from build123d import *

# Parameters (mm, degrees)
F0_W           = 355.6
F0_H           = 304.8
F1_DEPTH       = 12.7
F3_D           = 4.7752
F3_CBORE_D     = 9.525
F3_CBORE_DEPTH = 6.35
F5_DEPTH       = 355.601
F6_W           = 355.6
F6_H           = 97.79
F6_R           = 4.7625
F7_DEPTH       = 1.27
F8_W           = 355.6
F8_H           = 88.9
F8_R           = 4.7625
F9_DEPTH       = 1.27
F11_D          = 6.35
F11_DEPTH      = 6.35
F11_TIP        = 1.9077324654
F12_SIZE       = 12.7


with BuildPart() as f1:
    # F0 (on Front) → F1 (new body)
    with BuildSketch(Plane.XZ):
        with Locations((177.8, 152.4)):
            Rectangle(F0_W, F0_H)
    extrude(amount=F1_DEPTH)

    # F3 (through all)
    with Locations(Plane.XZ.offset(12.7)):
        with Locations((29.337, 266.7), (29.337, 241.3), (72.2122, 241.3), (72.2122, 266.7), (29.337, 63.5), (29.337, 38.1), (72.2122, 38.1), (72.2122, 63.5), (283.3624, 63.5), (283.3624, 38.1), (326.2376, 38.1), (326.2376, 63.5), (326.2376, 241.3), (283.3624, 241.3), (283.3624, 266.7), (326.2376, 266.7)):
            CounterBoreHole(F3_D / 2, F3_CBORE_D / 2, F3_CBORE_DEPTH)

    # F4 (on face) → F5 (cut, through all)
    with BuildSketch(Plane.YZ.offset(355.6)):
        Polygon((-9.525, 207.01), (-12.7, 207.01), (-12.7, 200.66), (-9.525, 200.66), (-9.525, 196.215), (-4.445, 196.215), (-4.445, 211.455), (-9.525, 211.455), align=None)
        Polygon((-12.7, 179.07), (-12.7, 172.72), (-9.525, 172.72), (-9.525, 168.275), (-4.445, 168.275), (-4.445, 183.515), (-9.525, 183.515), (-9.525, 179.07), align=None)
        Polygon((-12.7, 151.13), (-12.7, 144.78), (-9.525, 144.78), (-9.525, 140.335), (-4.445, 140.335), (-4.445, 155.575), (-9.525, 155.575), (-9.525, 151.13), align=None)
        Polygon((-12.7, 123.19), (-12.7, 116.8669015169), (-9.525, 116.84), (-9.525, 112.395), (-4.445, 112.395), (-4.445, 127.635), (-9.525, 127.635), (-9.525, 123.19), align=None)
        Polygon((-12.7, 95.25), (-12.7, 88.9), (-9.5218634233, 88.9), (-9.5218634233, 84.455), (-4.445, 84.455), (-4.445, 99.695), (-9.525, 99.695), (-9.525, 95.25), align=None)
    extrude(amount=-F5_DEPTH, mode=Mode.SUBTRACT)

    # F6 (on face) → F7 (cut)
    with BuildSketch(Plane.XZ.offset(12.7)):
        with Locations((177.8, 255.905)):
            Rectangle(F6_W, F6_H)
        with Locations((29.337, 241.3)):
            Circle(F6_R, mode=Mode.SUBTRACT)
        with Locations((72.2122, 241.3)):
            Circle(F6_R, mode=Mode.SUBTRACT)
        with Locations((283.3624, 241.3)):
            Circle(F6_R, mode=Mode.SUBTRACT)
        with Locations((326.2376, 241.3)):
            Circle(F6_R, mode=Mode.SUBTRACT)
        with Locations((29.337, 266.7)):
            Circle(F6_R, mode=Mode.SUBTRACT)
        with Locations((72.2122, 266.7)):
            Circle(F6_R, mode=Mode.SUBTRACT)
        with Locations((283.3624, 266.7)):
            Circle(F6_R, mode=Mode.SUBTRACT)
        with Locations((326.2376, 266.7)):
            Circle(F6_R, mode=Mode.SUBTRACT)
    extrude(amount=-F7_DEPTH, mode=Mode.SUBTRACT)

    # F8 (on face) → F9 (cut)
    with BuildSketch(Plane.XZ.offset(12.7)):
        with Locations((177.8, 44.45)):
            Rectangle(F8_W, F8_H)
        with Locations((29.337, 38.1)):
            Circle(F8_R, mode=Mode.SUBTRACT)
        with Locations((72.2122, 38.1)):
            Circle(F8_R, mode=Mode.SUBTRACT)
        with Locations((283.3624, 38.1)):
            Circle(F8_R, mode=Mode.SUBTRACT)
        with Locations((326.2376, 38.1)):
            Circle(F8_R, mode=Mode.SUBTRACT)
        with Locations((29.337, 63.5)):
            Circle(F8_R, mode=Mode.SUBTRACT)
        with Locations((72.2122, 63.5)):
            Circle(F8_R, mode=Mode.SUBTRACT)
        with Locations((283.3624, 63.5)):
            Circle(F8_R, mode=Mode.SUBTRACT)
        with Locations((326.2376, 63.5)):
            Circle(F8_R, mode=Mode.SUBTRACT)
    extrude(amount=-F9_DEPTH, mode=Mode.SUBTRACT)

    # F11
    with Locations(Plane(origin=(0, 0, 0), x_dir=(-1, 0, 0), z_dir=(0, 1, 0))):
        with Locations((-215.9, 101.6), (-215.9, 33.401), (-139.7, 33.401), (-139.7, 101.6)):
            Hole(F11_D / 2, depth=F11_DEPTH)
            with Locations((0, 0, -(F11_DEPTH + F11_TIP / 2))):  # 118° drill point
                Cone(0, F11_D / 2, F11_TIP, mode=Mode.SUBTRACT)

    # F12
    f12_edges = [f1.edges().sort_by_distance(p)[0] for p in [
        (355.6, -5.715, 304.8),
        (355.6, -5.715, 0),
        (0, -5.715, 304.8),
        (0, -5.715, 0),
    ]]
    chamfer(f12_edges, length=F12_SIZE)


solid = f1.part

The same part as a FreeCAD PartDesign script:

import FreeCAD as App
import Part
import Sketcher
Q = App.Units.Quantity


def edges_at(feature, points):
    """Names of the edges that pass closest to the given points."""
    edges = feature.Shape.Edges
    near = lambda p: min(range(len(edges)), key=lambda i: edges[i].distToShape(Part.Vertex(*p))[0])
    return sorted({f"Edge{near(p) + 1}" for p in points})

doc = App.newDocument("Part")
params = doc.addObject("Spreadsheet::Sheet", "Params")
for row, (alias, value) in enumerate([
    ("sketch1_width", "14 in"),
    ("sketch1_height", "12 in"),
    ("pad1_length", "0.5 in"),
    ("sketch2_diameter", "0.188 in"),
    ("hole_diameter", "0.188 in"),
    ("hole_cbore_diameter", "0.375 in"),
    ("hole_cbore_depth", "0.25 in"),
    ("sketch3_width", "0.2 in"),
    ("sketch3_height", "0.6 in"),
    ("sketch3_height2", "0.25 in"),
    ("sketch3_width2", "0.125 in"),
    ("sketch4_width", "14 in"),
    ("sketch4_diameter", "0.375 in"),
    ("sketch4_height", "3.85 in"),
    ("pocket2_length", "0.05 in"),
    ("sketch5_width", "14 in"),
    ("sketch5_diameter", "0.375 in"),
    ("sketch5_height", "3.5 in"),
    ("pocket3_length", "0.05 in"),
    ("sketch6_diameter", "0.25 in"),
    ("hole2_diameter", "0.25 in"),
    ("hole2_depth", "0.25 in"),
    ("chamfer_size", "0.5 in"),
], start=1):
    params.set(f"A{row}", alias)
    params.set(f"B{row}", "=" + value)
    params.setAlias(f"B{row}", alias)

body = doc.addObject("PartDesign::Body", "Body")

sketch1 = body.newObject("Sketcher::SketchObject", "Sketch")
sketch1.AttachmentSupport = (doc.getObject("XZ_Plane"), [""])
sketch1.MapMode = "FlatFace"
sketch1.addGeometry(Part.LineSegment(App.Vector(0, 305, 0), App.Vector(0, 0, 0)), False)
sketch1.addGeometry(Part.LineSegment(App.Vector(0, 0, 0), App.Vector(356, 0, 0)), False)
sketch1.addGeometry(Part.LineSegment(App.Vector(356, 0, 0), App.Vector(356, 305, 0)), False)
sketch1.addGeometry(Part.LineSegment(App.Vector(356, 305, 0), App.Vector(0, 305, 0)), False)
sketch1.addConstraint(Sketcher.Constraint("Coincident", 0, 2, 1, 1))
sketch1.addConstraint(Sketcher.Constraint("Coincident", 1, 2, 2, 1))
sketch1.addConstraint(Sketcher.Constraint("Coincident", 2, 2, 3, 1))
sketch1.addConstraint(Sketcher.Constraint("Coincident", 3, 2, 0, 1))
sketch1.addConstraint(Sketcher.Constraint("Vertical", 0))
sketch1.addConstraint(Sketcher.Constraint("Horizontal", 1))
sketch1.addConstraint(Sketcher.Constraint("Vertical", 2))
sketch1.addConstraint(Sketcher.Constraint("Horizontal", 3))
sketch1.addConstraint(Sketcher.Constraint("Coincident", 0, 2, -1, 1))
sketch1.addConstraint(Sketcher.Constraint("DistanceX", 1, 1, 1, 2, Q("14 in")))
sketch1.addConstraint(Sketcher.Constraint("DistanceY", 0, 2, 0, 1, Q("12 in")))
sketch1.setExpression("Constraints[9]", "Params.sketch1_width")
sketch1.setExpression("Constraints[10]", "Params.sketch1_height")
pad1 = body.newObject("PartDesign::Pad", "Pad")
pad1.Profile = sketch1
pad1.setExpression("Length", "Params.pad1_length")

sketch2 = body.newObject("Sketcher::SketchObject", "Sketch001")
sketch2.AttachmentSupport = (doc.getObject("XZ_Plane"), [""])
sketch2.MapMode = "FlatFace"
sketch2.AttachmentOffset = App.Placement(App.Vector(0, 0, 0.5 * 25.4), App.Rotation())
sketch2.addGeometry(Part.Circle(App.Vector(29.3, 266.7, 0), App.Vector(0, 0, 1), 2.4), False)
sketch2.addGeometry(Part.Circle(App.Vector(29.3, 241.3, 0), App.Vector(0, 0, 1), 2.4), False)
sketch2.addGeometry(Part.Circle(App.Vector(72.2, 241.3, 0), App.Vector(0, 0, 1), 2.4), False)
sketch2.addGeometry(Part.Circle(App.Vector(72.2, 266.7, 0), App.Vector(0, 0, 1), 2.4), False)
sketch2.addGeometry(Part.Circle(App.Vector(29.3, 63.5, 0), App.Vector(0, 0, 1), 2.4), False)
sketch2.addGeometry(Part.Circle(App.Vector(29.3, 38.1, 0), App.Vector(0, 0, 1), 2.4), False)
sketch2.addGeometry(Part.Circle(App.Vector(72.2, 38.1, 0), App.Vector(0, 0, 1), 2.4), False)
sketch2.addGeometry(Part.Circle(App.Vector(72.2, 63.5, 0), App.Vector(0, 0, 1), 2.4), False)
sketch2.addGeometry(Part.Circle(App.Vector(283.4, 63.5, 0), App.Vector(0, 0, 1), 2.4), False)
sketch2.addGeometry(Part.Circle(App.Vector(283.4, 38.1, 0), App.Vector(0, 0, 1), 2.4), False)
sketch2.addGeometry(Part.Circle(App.Vector(326.2, 38.1, 0), App.Vector(0, 0, 1), 2.4), False)
sketch2.addGeometry(Part.Circle(App.Vector(326.2, 63.5, 0), App.Vector(0, 0, 1), 2.4), False)
sketch2.addGeometry(Part.Circle(App.Vector(326.2, 241.3, 0), App.Vector(0, 0, 1), 2.4), False)
sketch2.addGeometry(Part.Circle(App.Vector(283.4, 241.3, 0), App.Vector(0, 0, 1), 2.4), False)
sketch2.addGeometry(Part.Circle(App.Vector(283.4, 266.7, 0), App.Vector(0, 0, 1), 2.4), False)
sketch2.addGeometry(Part.Circle(App.Vector(326.2, 266.7, 0), App.Vector(0, 0, 1), 2.4), False)
sketch2.addConstraint(Sketcher.Constraint("Equal", 0, 1))
sketch2.addConstraint(Sketcher.Constraint("Equal", 1, 2))
sketch2.addConstraint(Sketcher.Constraint("Equal", 2, 3))
sketch2.addConstraint(Sketcher.Constraint("Equal", 3, 4))
sketch2.addConstraint(Sketcher.Constraint("Equal", 4, 5))
sketch2.addConstraint(Sketcher.Constraint("Equal", 5, 6))
sketch2.addConstraint(Sketcher.Constraint("Equal", 6, 7))
sketch2.addConstraint(Sketcher.Constraint("Equal", 7, 8))
sketch2.addConstraint(Sketcher.Constraint("Equal", 8, 9))
sketch2.addConstraint(Sketcher.Constraint("Equal", 9, 10))
sketch2.addConstraint(Sketcher.Constraint("Equal", 10, 11))
sketch2.addConstraint(Sketcher.Constraint("Equal", 11, 12))
sketch2.addConstraint(Sketcher.Constraint("Equal", 12, 13))
sketch2.addConstraint(Sketcher.Constraint("Equal", 13, 14))
sketch2.addConstraint(Sketcher.Constraint("Equal", 14, 15))
sketch2.addConstraint(Sketcher.Constraint("Horizontal", 1, 3, 2, 3))
sketch2.addConstraint(Sketcher.Constraint("Horizontal", 0, 3, 3, 3))
sketch2.addConstraint(Sketcher.Constraint("Horizontal", 5, 3, 6, 3))
sketch2.addConstraint(Sketcher.Constraint("Horizontal", 4, 3, 7, 3))
sketch2.addConstraint(Sketcher.Constraint("Horizontal", 7, 3, 8, 3))
sketch2.addConstraint(Sketcher.Constraint("Horizontal", 6, 3, 9, 3))
sketch2.addConstraint(Sketcher.Constraint("Horizontal", 9, 3, 10, 3))
sketch2.addConstraint(Sketcher.Constraint("Horizontal", 8, 3, 11, 3))
sketch2.addConstraint(Sketcher.Constraint("Horizontal", 2, 3, 12, 3))
sketch2.addConstraint(Sketcher.Constraint("Horizontal", 12, 3, 13, 3))
sketch2.addConstraint(Sketcher.Constraint("Horizontal", 3, 3, 14, 3))
sketch2.addConstraint(Sketcher.Constraint("Horizontal", 14, 3, 15, 3))
sketch2.addConstraint(Sketcher.Constraint("Vertical", 0, 3, 1, 3))
sketch2.addConstraint(Sketcher.Constraint("Vertical", 2, 3, 3, 3))
sketch2.addConstraint(Sketcher.Constraint("Vertical", 1, 3, 4, 3))
sketch2.addConstraint(Sketcher.Constraint("Vertical", 4, 3, 5, 3))
sketch2.addConstraint(Sketcher.Constraint("Vertical", 3, 3, 6, 3))
sketch2.addConstraint(Sketcher.Constraint("Vertical", 6, 3, 7, 3))
sketch2.addConstraint(Sketcher.Constraint("Vertical", 8, 3, 9, 3))
sketch2.addConstraint(Sketcher.Constraint("Vertical", 10, 3, 11, 3))
sketch2.addConstraint(Sketcher.Constraint("Vertical", 11, 3, 12, 3))
sketch2.addConstraint(Sketcher.Constraint("Vertical", 9, 3, 13, 3))
sketch2.addConstraint(Sketcher.Constraint("Vertical", 13, 3, 14, 3))
sketch2.addConstraint(Sketcher.Constraint("Vertical", 12, 3, 15, 3))
sketch2.addConstraint(Sketcher.Constraint("Diameter", 0, Q("0.188 in")))
sketch2.addConstraint(Sketcher.Constraint("DistanceY", 1, 3, 0, 3, Q("1 in")))
sketch2.addConstraint(Sketcher.Constraint("DistanceY", 4, 3, 1, 3, Q("7 in")))
sketch2.addConstraint(Sketcher.Constraint("DistanceY", 5, 3, 4, 3, Q("1 in")))
sketch2.addConstraint(Sketcher.Constraint("DistanceY", -1, 1, 0, 3, Q("10.5 in")))
sketch2.addConstraint(Sketcher.Constraint("DistanceX", -1, 1, 0, 3, Q("1.155 in")))
sketch2.addConstraint(Sketcher.Constraint("DistanceX", -1, 1, 2, 3, Q("2.843 in")))
sketch2.addConstraint(Sketcher.Constraint("DistanceX", -1, 1, 8, 3, Q("11.156 in")))
sketch2.addConstraint(Sketcher.Constraint("DistanceX", -1, 1, 10, 3, Q("12.844 in")))
sketch2.setExpression("Constraints[39]", "Params.sketch2_diameter")
doc.recompute()
hole = body.newObject("PartDesign::Hole", "Hole")
hole.Profile = sketch2
hole.ThreadType = "None"
hole.setExpression("Diameter", "Params.hole_diameter")
hole.DepthType = "ThroughAll"
hole.HoleCutType = "Counterbore"
hole.setExpression("HoleCutDiameter", "Params.hole_cbore_diameter")
hole.setExpression("HoleCutDepth", "Params.hole_cbore_depth")

sketch3 = body.newObject("Sketcher::SketchObject", "Sketch002")
sketch3.AttachmentSupport = (doc.getObject("YZ_Plane"), [""])
sketch3.MapMode = "FlatFace"
sketch3.AttachmentOffset = App.Placement(App.Vector(0, 0, 14 * 25.4), App.Rotation())
sketch3.addGeometry(Part.LineSegment(App.Vector(-9.5, 207, 0), App.Vector(-12.7, 207, 0)), False)
sketch3.addGeometry(Part.LineSegment(App.Vector(-12.7, 207, 0), App.Vector(-12.7, 200.7, 0)), False)
sketch3.addGeometry(Part.LineSegment(App.Vector(-12.7, 200.7, 0), App.Vector(-9.5, 200.7, 0)), False)
sketch3.addGeometry(Part.LineSegment(App.Vector(-9.5, 200.7, 0), App.Vector(-9.5, 196.2, 0)), False)
sketch3.addGeometry(Part.LineSegment(App.Vector(-9.5, 196.2, 0), App.Vector(-4.4, 196.2, 0)), False)
sketch3.addGeometry(Part.LineSegment(App.Vector(-4.4, 196.2, 0), App.Vector(-4.4, 211.5, 0)), False)
sketch3.addGeometry(Part.LineSegment(App.Vector(-4.4, 211.5, 0), App.Vector(-9.5, 211.5, 0)), False)
sketch3.addGeometry(Part.LineSegment(App.Vector(-9.5, 211.5, 0), App.Vector(-9.5, 207, 0)), False)
sketch3.addGeometry(Part.LineSegment(App.Vector(-12.7, 179.1, 0), App.Vector(-12.7, 172.7, 0)), False)
sketch3.addGeometry(Part.LineSegment(App.Vector(-12.7, 172.7, 0), App.Vector(-9.5, 172.7, 0)), False)
sketch3.addGeometry(Part.LineSegment(App.Vector(-9.5, 172.7, 0), App.Vector(-9.5, 168.3, 0)), False)
sketch3.addGeometry(Part.LineSegment(App.Vector(-9.5, 168.3, 0), App.Vector(-4.4, 168.3, 0)), False)
sketch3.addGeometry(Part.LineSegment(App.Vector(-4.4, 168.3, 0), App.Vector(-4.4, 183.5, 0)), False)
sketch3.addGeometry(Part.LineSegment(App.Vector(-4.4, 183.5, 0), App.Vector(-9.5, 183.5, 0)), False)
sketch3.addGeometry(Part.LineSegment(App.Vector(-9.5, 183.5, 0), App.Vector(-9.5, 179.1, 0)), False)
sketch3.addGeometry(Part.LineSegment(App.Vector(-9.5, 179.1, 0), App.Vector(-12.7, 179.1, 0)), False)
sketch3.addGeometry(Part.LineSegment(App.Vector(-12.7, 151.1, 0), App.Vector(-12.7, 144.8, 0)), False)
sketch3.addGeometry(Part.LineSegment(App.Vector(-12.7, 144.8, 0), App.Vector(-9.5, 144.8, 0)), False)
sketch3.addGeometry(Part.LineSegment(App.Vector(-9.5, 144.8, 0), App.Vector(-9.5, 140.3, 0)), False)
sketch3.addGeometry(Part.LineSegment(App.Vector(-9.5, 140.3, 0), App.Vector(-4.4, 140.3, 0)), False)
sketch3.addGeometry(Part.LineSegment(App.Vector(-4.4, 140.3, 0), App.Vector(-4.4, 155.6, 0)), False)
sketch3.addGeometry(Part.LineSegment(App.Vector(-4.4, 155.6, 0), App.Vector(-9.5, 155.6, 0)), False)
sketch3.addGeometry(Part.LineSegment(App.Vector(-9.5, 155.6, 0), App.Vector(-9.5, 151.1, 0)), False)
sketch3.addGeometry(Part.LineSegment(App.Vector(-9.5, 151.1, 0), App.Vector(-12.7, 151.1, 0)), False)
sketch3.addGeometry(Part.LineSegment(App.Vector(-12.7, 123.2, 0), App.Vector(-12.7, 116.9, 0)), False)
sketch3.addGeometry(Part.LineSegment(App.Vector(-12.7, 116.9, 0), App.Vector(-9.5, 116.8, 0)), False)
sketch3.addGeometry(Part.LineSegment(App.Vector(-9.5, 116.8, 0), App.Vector(-9.5, 112.4, 0)), False)
sketch3.addGeometry(Part.LineSegment(App.Vector(-9.5, 112.4, 0), App.Vector(-4.4, 112.4, 0)), False)
sketch3.addGeometry(Part.LineSegment(App.Vector(-4.4, 112.4, 0), App.Vector(-4.4, 127.6, 0)), False)
sketch3.addGeometry(Part.LineSegment(App.Vector(-4.4, 127.6, 0), App.Vector(-9.5, 127.6, 0)), False)
sketch3.addGeometry(Part.LineSegment(App.Vector(-9.5, 127.6, 0), App.Vector(-9.5, 123.2, 0)), False)
sketch3.addGeometry(Part.LineSegment(App.Vector(-9.5, 123.2, 0), App.Vector(-12.7, 123.2, 0)), False)
sketch3.addGeometry(Part.LineSegment(App.Vector(-12.7, 95.2, 0), App.Vector(-12.7, 88.9, 0)), False)
sketch3.addGeometry(Part.LineSegment(App.Vector(-12.7, 88.9, 0), App.Vector(-9.5, 88.9, 0)), False)
sketch3.addGeometry(Part.LineSegment(App.Vector(-9.5, 88.9, 0), App.Vector(-9.5, 84.5, 0)), False)
sketch3.addGeometry(Part.LineSegment(App.Vector(-9.5, 84.5, 0), App.Vector(-4.4, 84.5, 0)), False)
sketch3.addGeometry(Part.LineSegment(App.Vector(-4.4, 84.5, 0), App.Vector(-4.4, 99.7, 0)), False)
sketch3.addGeometry(Part.LineSegment(App.Vector(-4.4, 99.7, 0), App.Vector(-9.5, 99.7, 0)), False)
sketch3.addGeometry(Part.LineSegment(App.Vector(-9.5, 99.7, 0), App.Vector(-9.5, 95.2, 0)), False)
sketch3.addGeometry(Part.LineSegment(App.Vector(-9.5, 95.2, 0), App.Vector(-12.7, 95.2, 0)), False)
sketch3.addConstraint(Sketcher.Constraint("Coincident", 0, 2, 1, 1))
sketch3.addConstraint(Sketcher.Constraint("Coincident", 1, 2, 2, 1))
sketch3.addConstraint(Sketcher.Constraint("Coincident", 2, 2, 3, 1))
sketch3.addConstraint(Sketcher.Constraint("Coincident", 3, 2, 4, 1))
sketch3.addConstraint(Sketcher.Constraint("Coincident", 4, 2, 5, 1))
sketch3.addConstraint(Sketcher.Constraint("Coincident", 5, 2, 6, 1))
sketch3.addConstraint(Sketcher.Constraint("Coincident", 6, 2, 7, 1))
sketch3.addConstraint(Sketcher.Constraint("Coincident", 7, 2, 0, 1))
sketch3.addConstraint(Sketcher.Constraint("Coincident", 8, 2, 9, 1))
sketch3.addConstraint(Sketcher.Constraint("Coincident", 9, 2, 10, 1))
sketch3.addConstraint(Sketcher.Constraint("Coincident", 10, 2, 11, 1))
sketch3.addConstraint(Sketcher.Constraint("Coincident", 11, 2, 12, 1))
sketch3.addConstraint(Sketcher.Constraint("Coincident", 12, 2, 13, 1))
sketch3.addConstraint(Sketcher.Constraint("Coincident", 13, 2, 14, 1))
sketch3.addConstraint(Sketcher.Constraint("Coincident", 14, 2, 15, 1))
sketch3.addConstraint(Sketcher.Constraint("Coincident", 15, 2, 8, 1))
sketch3.addConstraint(Sketcher.Constraint("Coincident", 16, 2, 17, 1))
sketch3.addConstraint(Sketcher.Constraint("Coincident", 17, 2, 18, 1))
sketch3.addConstraint(Sketcher.Constraint("Coincident", 18, 2, 19, 1))
sketch3.addConstraint(Sketcher.Constraint("Coincident", 19, 2, 20, 1))
sketch3.addConstraint(Sketcher.Constraint("Coincident", 20, 2, 21, 1))
sketch3.addConstraint(Sketcher.Constraint("Coincident", 21, 2, 22, 1))
sketch3.addConstraint(Sketcher.Constraint("Coincident", 22, 2, 23, 1))
sketch3.addConstraint(Sketcher.Constraint("Coincident", 23, 2, 16, 1))
sketch3.addConstraint(Sketcher.Constraint("Coincident", 24, 2, 25, 1))
sketch3.addConstraint(Sketcher.Constraint("Coincident", 25, 2, 26, 1))
sketch3.addConstraint(Sketcher.Constraint("Coincident", 26, 2, 27, 1))
sketch3.addConstraint(Sketcher.Constraint("Coincident", 27, 2, 28, 1))
sketch3.addConstraint(Sketcher.Constraint("Coincident", 28, 2, 29, 1))
sketch3.addConstraint(Sketcher.Constraint("Coincident", 29, 2, 30, 1))
sketch3.addConstraint(Sketcher.Constraint("Coincident", 30, 2, 31, 1))
sketch3.addConstraint(Sketcher.Constraint("Coincident", 31, 2, 24, 1))
sketch3.addConstraint(Sketcher.Constraint("Coincident", 32, 2, 33, 1))
sketch3.addConstraint(Sketcher.Constraint("Coincident", 33, 2, 34, 1))
sketch3.addConstraint(Sketcher.Constraint("Coincident", 34, 2, 35, 1))
sketch3.addConstraint(Sketcher.Constraint("Coincident", 35, 2, 36, 1))
sketch3.addConstraint(Sketcher.Constraint("Coincident", 36, 2, 37, 1))
sketch3.addConstraint(Sketcher.Constraint("Coincident", 37, 2, 38, 1))
sketch3.addConstraint(Sketcher.Constraint("Coincident", 38, 2, 39, 1))
sketch3.addConstraint(Sketcher.Constraint("Coincident", 39, 2, 32, 1))
sketch3.addConstraint(Sketcher.Constraint("Horizontal", 0))
sketch3.addConstraint(Sketcher.Constraint("Vertical", 1))
sketch3.addConstraint(Sketcher.Constraint("Horizontal", 2))
sketch3.addConstraint(Sketcher.Constraint("Vertical", 3))
sketch3.addConstraint(Sketcher.Constraint("Horizontal", 4))
sketch3.addConstraint(Sketcher.Constraint("Vertical", 5))
sketch3.addConstraint(Sketcher.Constraint("Horizontal", 6))
sketch3.addConstraint(Sketcher.Constraint("Vertical", 7))
sketch3.addConstraint(Sketcher.Constraint("Vertical", 8))
sketch3.addConstraint(Sketcher.Constraint("Horizontal", 9))
sketch3.addConstraint(Sketcher.Constraint("Vertical", 10))
sketch3.addConstraint(Sketcher.Constraint("Horizontal", 11))
sketch3.addConstraint(Sketcher.Constraint("Vertical", 12))
sketch3.addConstraint(Sketcher.Constraint("Horizontal", 13))
sketch3.addConstraint(Sketcher.Constraint("Vertical", 14))
sketch3.addConstraint(Sketcher.Constraint("Horizontal", 15))
sketch3.addConstraint(Sketcher.Constraint("Vertical", 16))
sketch3.addConstraint(Sketcher.Constraint("Horizontal", 17))
sketch3.addConstraint(Sketcher.Constraint("Vertical", 18))
sketch3.addConstraint(Sketcher.Constraint("Horizontal", 19))
sketch3.addConstraint(Sketcher.Constraint("Vertical", 20))
sketch3.addConstraint(Sketcher.Constraint("Horizontal", 21))
sketch3.addConstraint(Sketcher.Constraint("Vertical", 22))
sketch3.addConstraint(Sketcher.Constraint("Horizontal", 23))
sketch3.addConstraint(Sketcher.Constraint("Vertical", 24))
sketch3.addConstraint(Sketcher.Constraint("Vertical", 26))
sketch3.addConstraint(Sketcher.Constraint("Horizontal", 27))
sketch3.addConstraint(Sketcher.Constraint("Vertical", 28))
sketch3.addConstraint(Sketcher.Constraint("Horizontal", 29))
sketch3.addConstraint(Sketcher.Constraint("Vertical", 30))
sketch3.addConstraint(Sketcher.Constraint("Horizontal", 31))
sketch3.addConstraint(Sketcher.Constraint("Vertical", 32))
sketch3.addConstraint(Sketcher.Constraint("Horizontal", 33))
sketch3.addConstraint(Sketcher.Constraint("Vertical", 34))
sketch3.addConstraint(Sketcher.Constraint("Horizontal", 35))
sketch3.addConstraint(Sketcher.Constraint("Vertical", 36))
sketch3.addConstraint(Sketcher.Constraint("Horizontal", 37))
sketch3.addConstraint(Sketcher.Constraint("Vertical", 38))
sketch3.addConstraint(Sketcher.Constraint("Horizontal", 39))
sketch3.addConstraint(Sketcher.Constraint("Vertical", 3, 2, 6, 2))
sketch3.addConstraint(Sketcher.Constraint("Vertical", 1, 2, 8, 2))
sketch3.addConstraint(Sketcher.Constraint("Vertical", 7, 2, 9, 2))
sketch3.addConstraint(Sketcher.Constraint("Vertical", 5, 2, 11, 2))
sketch3.addConstraint(Sketcher.Constraint("Vertical", 10, 2, 13, 2))
sketch3.addConstraint(Sketcher.Constraint("Vertical", 15, 2, 16, 2))
sketch3.addConstraint(Sketcher.Constraint("Vertical", 14, 2, 17, 2))
sketch3.addConstraint(Sketcher.Constraint("Vertical", 12, 2, 19, 2))
sketch3.addConstraint(Sketcher.Constraint("Vertical", 18, 2, 21, 2))
sketch3.addConstraint(Sketcher.Constraint("Vertical", 23, 2, 24, 2))
sketch3.addConstraint(Sketcher.Constraint("Vertical", 22, 2, 25, 2))
sketch3.addConstraint(Sketcher.Constraint("Vertical", 20, 2, 27, 2))
sketch3.addConstraint(Sketcher.Constraint("Vertical", 26, 2, 29, 2))
sketch3.addConstraint(Sketcher.Constraint("Vertical", 31, 2, 32, 2))
sketch3.addConstraint(Sketcher.Constraint("Vertical", 28, 2, 35, 2))
sketch3.addConstraint(Sketcher.Constraint("Vertical", 30, 2, 37, 2))
sketch3.addConstraint(Sketcher.Constraint("Equal", 3, 7))
sketch3.addConstraint(Sketcher.Constraint("Equal", 1, 8))
sketch3.addConstraint(Sketcher.Constraint("Equal", 7, 10))
sketch3.addConstraint(Sketcher.Constraint("Equal", 5, 12))
sketch3.addConstraint(Sketcher.Constraint("Equal", 8, 16))
sketch3.addConstraint(Sketcher.Constraint("Equal", 14, 18))
sketch3.addConstraint(Sketcher.Constraint("Equal", 12, 20))
sketch3.addConstraint(Sketcher.Constraint("Equal", 22, 26))
sketch3.addConstraint(Sketcher.Constraint("Equal", 20, 28))
sketch3.addConstraint(Sketcher.Constraint("Equal", 26, 30))
sketch3.addConstraint(Sketcher.Constraint("Equal", 16, 32))
sketch3.addConstraint(Sketcher.Constraint("Equal", 30, 34))
sketch3.addConstraint(Sketcher.Constraint("Equal", 28, 36))
sketch3.addConstraint(Sketcher.Constraint("DistanceX", 4, 1, 4, 2, Q("0.2 in")))
sketch3.addConstraint(Sketcher.Constraint("DistanceY", 5, 1, 5, 2, Q("0.6 in")))
sketch3.addConstraint(Sketcher.Constraint("DistanceY", 1, 2, 1, 1, Q("0.25 in")))
sketch3.addConstraint(Sketcher.Constraint("DistanceX", 0, 2, -1, 1, Q("0.5 in")))
sketch3.addConstraint(Sketcher.Constraint("DistanceY", -1, 1, 1, 2, Q("7.9 in")))
sketch3.addConstraint(Sketcher.Constraint("DistanceY", -1, 1, 8, 2, Q("6.8 in")))
sketch3.addConstraint(Sketcher.Constraint("DistanceY", -1, 1, 16, 2, Q("5.7 in")))
sketch3.addConstraint(Sketcher.Constraint("DistanceY", -1, 1, 25, 2, Q("4.6 in")))
sketch3.addConstraint(Sketcher.Constraint("DistanceY", -1, 1, 32, 2, Q("3.5 in")))
sketch3.addConstraint(Sketcher.Constraint("DistanceX", 0, 2, 0, 1, Q("0.125 in")))
sketch3.addConstraint(Sketcher.Constraint("DistanceY", 24, 2, 24, 1, 6.323098))
sketch3.addConstraint(Sketcher.Constraint("DistanceX", 33, 1, 33, 2, 3.178137))
sketch3.setExpression("Constraints[108]", "Params.sketch3_width")
sketch3.setExpression("Constraints[109]", "Params.sketch3_height")
sketch3.setExpression("Constraints[110]", "Params.sketch3_height2")
sketch3.setExpression("Constraints[117]", "Params.sketch3_width2")
pocket1 = body.newObject("PartDesign::Pocket", "Pocket")
pocket1.Profile = sketch3
pocket1.Type = "ThroughAll"

sketch4 = body.newObject("Sketcher::SketchObject", "Sketch003")
sketch4.AttachmentSupport = (doc.getObject("XZ_Plane"), [""])
sketch4.MapMode = "FlatFace"
sketch4.AttachmentOffset = App.Placement(App.Vector(0, 0, 0.5 * 25.4), App.Rotation())
sketch4.addGeometry(Part.LineSegment(App.Vector(0, 304.8, 0), App.Vector(0, 207, 0)), False)
sketch4.addGeometry(Part.LineSegment(App.Vector(0, 207, 0), App.Vector(355.6, 207, 0)), False)
sketch4.addGeometry(Part.LineSegment(App.Vector(355.6, 207, 0), App.Vector(355.6, 304.8, 0)), False)
sketch4.addGeometry(Part.LineSegment(App.Vector(355.6, 304.8, 0), App.Vector(0, 304.8, 0)), False)
sketch4.addGeometry(Part.Circle(App.Vector(29.3, 241.3, 0), App.Vector(0, 0, 1), 4.8), False)
sketch4.addGeometry(Part.Circle(App.Vector(72.2, 241.3, 0), App.Vector(0, 0, 1), 4.8), False)
sketch4.addGeometry(Part.Circle(App.Vector(283.4, 241.3, 0), App.Vector(0, 0, 1), 4.8), False)
sketch4.addGeometry(Part.Circle(App.Vector(326.2, 241.3, 0), App.Vector(0, 0, 1), 4.8), False)
sketch4.addGeometry(Part.Circle(App.Vector(29.3, 266.7, 0), App.Vector(0, 0, 1), 4.8), False)
sketch4.addGeometry(Part.Circle(App.Vector(72.2, 266.7, 0), App.Vector(0, 0, 1), 4.8), False)
sketch4.addGeometry(Part.Circle(App.Vector(283.4, 266.7, 0), App.Vector(0, 0, 1), 4.8), False)
sketch4.addGeometry(Part.Circle(App.Vector(326.2, 266.7, 0), App.Vector(0, 0, 1), 4.8), False)
sketch4.addConstraint(Sketcher.Constraint("Coincident", 0, 2, 1, 1))
sketch4.addConstraint(Sketcher.Constraint("Coincident", 1, 2, 2, 1))
sketch4.addConstraint(Sketcher.Constraint("Coincident", 2, 2, 3, 1))
sketch4.addConstraint(Sketcher.Constraint("Coincident", 3, 2, 0, 1))
sketch4.addConstraint(Sketcher.Constraint("Vertical", 0))
sketch4.addConstraint(Sketcher.Constraint("Horizontal", 1))
sketch4.addConstraint(Sketcher.Constraint("Vertical", 2))
sketch4.addConstraint(Sketcher.Constraint("Horizontal", 3))
sketch4.addConstraint(Sketcher.Constraint("Equal", 4, 5))
sketch4.addConstraint(Sketcher.Constraint("Equal", 5, 6))
sketch4.addConstraint(Sketcher.Constraint("Equal", 6, 7))
sketch4.addConstraint(Sketcher.Constraint("Equal", 7, 8))
sketch4.addConstraint(Sketcher.Constraint("Equal", 8, 9))
sketch4.addConstraint(Sketcher.Constraint("Equal", 9, 10))
sketch4.addConstraint(Sketcher.Constraint("Equal", 10, 11))
sketch4.addConstraint(Sketcher.Constraint("PointOnObject", 0, 2, -2))
sketch4.addConstraint(Sketcher.Constraint("Horizontal", 4, 3, 5, 3))
sketch4.addConstraint(Sketcher.Constraint("Horizontal", 5, 3, 6, 3))
sketch4.addConstraint(Sketcher.Constraint("Horizontal", 6, 3, 7, 3))
sketch4.addConstraint(Sketcher.Constraint("Horizontal", 8, 3, 9, 3))
sketch4.addConstraint(Sketcher.Constraint("Horizontal", 9, 3, 10, 3))
sketch4.addConstraint(Sketcher.Constraint("Horizontal", 10, 3, 11, 3))
sketch4.addConstraint(Sketcher.Constraint("Vertical", 4, 3, 8, 3))
sketch4.addConstraint(Sketcher.Constraint("Vertical", 5, 3, 9, 3))
sketch4.addConstraint(Sketcher.Constraint("Vertical", 6, 3, 10, 3))
sketch4.addConstraint(Sketcher.Constraint("Vertical", 7, 3, 11, 3))
sketch4.addConstraint(Sketcher.Constraint("DistanceX", 1, 1, 1, 2, Q("14 in")))
sketch4.addConstraint(Sketcher.Constraint("Diameter", 4, Q("0.375 in")))
sketch4.addConstraint(Sketcher.Constraint("DistanceY", -1, 1, 2, 2, Q("12 in")))
sketch4.addConstraint(Sketcher.Constraint("DistanceY", 4, 3, 8, 3, Q("1 in")))
sketch4.addConstraint(Sketcher.Constraint("DistanceY", 0, 2, 0, 1, Q("3.85 in")))
sketch4.addConstraint(Sketcher.Constraint("DistanceY", -1, 1, 4, 3, Q("9.5 in")))
sketch4.addConstraint(Sketcher.Constraint("DistanceX", -1, 1, 4, 3, Q("1.155 in")))
sketch4.addConstraint(Sketcher.Constraint("DistanceX", -1, 1, 5, 3, Q("2.843 in")))
sketch4.addConstraint(Sketcher.Constraint("DistanceX", -1, 1, 6, 3, Q("11.156 in")))
sketch4.addConstraint(Sketcher.Constraint("DistanceX", -1, 1, 7, 3, Q("12.844 in")))
sketch4.setExpression("Constraints[26]", "Params.sketch4_width")
sketch4.setExpression("Constraints[27]", "Params.sketch4_diameter")
sketch4.setExpression("Constraints[30]", "Params.sketch4_height")
pocket2 = body.newObject("PartDesign::Pocket", "Pocket001")
pocket2.Profile = sketch4
pocket2.setExpression("Length", "Params.pocket2_length")

sketch5 = body.newObject("Sketcher::SketchObject", "Sketch004")
sketch5.AttachmentSupport = (doc.getObject("XZ_Plane"), [""])
sketch5.MapMode = "FlatFace"
sketch5.AttachmentOffset = App.Placement(App.Vector(0, 0, 0.5 * 25.4), App.Rotation())
sketch5.addGeometry(Part.LineSegment(App.Vector(0, 88.9, 0), App.Vector(0, 0, 0)), False)
sketch5.addGeometry(Part.LineSegment(App.Vector(0, 0, 0), App.Vector(355.6, 0, 0)), False)
sketch5.addGeometry(Part.LineSegment(App.Vector(355.6, 0, 0), App.Vector(355.6, 88.9, 0)), False)
sketch5.addGeometry(Part.LineSegment(App.Vector(355.6, 88.9, 0), App.Vector(0, 88.9, 0)), False)
sketch5.addGeometry(Part.Circle(App.Vector(29.3, 38.1, 0), App.Vector(0, 0, 1), 4.8), False)
sketch5.addGeometry(Part.Circle(App.Vector(72.2, 38.1, 0), App.Vector(0, 0, 1), 4.8), False)
sketch5.addGeometry(Part.Circle(App.Vector(283.4, 38.1, 0), App.Vector(0, 0, 1), 4.8), False)
sketch5.addGeometry(Part.Circle(App.Vector(326.2, 38.1, 0), App.Vector(0, 0, 1), 4.8), False)
sketch5.addGeometry(Part.Circle(App.Vector(29.3, 63.5, 0), App.Vector(0, 0, 1), 4.8), False)
sketch5.addGeometry(Part.Circle(App.Vector(72.2, 63.5, 0), App.Vector(0, 0, 1), 4.8), False)
sketch5.addGeometry(Part.Circle(App.Vector(283.4, 63.5, 0), App.Vector(0, 0, 1), 4.8), False)
sketch5.addGeometry(Part.Circle(App.Vector(326.2, 63.5, 0), App.Vector(0, 0, 1), 4.8), False)
sketch5.addConstraint(Sketcher.Constraint("Coincident", 0, 2, 1, 1))
sketch5.addConstraint(Sketcher.Constraint("Coincident", 1, 2, 2, 1))
sketch5.addConstraint(Sketcher.Constraint("Coincident", 2, 2, 3, 1))
sketch5.addConstraint(Sketcher.Constraint("Coincident", 3, 2, 0, 1))
sketch5.addConstraint(Sketcher.Constraint("Vertical", 0))
sketch5.addConstraint(Sketcher.Constraint("Horizontal", 1))
sketch5.addConstraint(Sketcher.Constraint("Vertical", 2))
sketch5.addConstraint(Sketcher.Constraint("Horizontal", 3))
sketch5.addConstraint(Sketcher.Constraint("Coincident", 0, 2, -1, 1))
sketch5.addConstraint(Sketcher.Constraint("Equal", 4, 5))
sketch5.addConstraint(Sketcher.Constraint("Equal", 5, 6))
sketch5.addConstraint(Sketcher.Constraint("Equal", 6, 7))
sketch5.addConstraint(Sketcher.Constraint("Equal", 7, 8))
sketch5.addConstraint(Sketcher.Constraint("Equal", 8, 9))
sketch5.addConstraint(Sketcher.Constraint("Equal", 9, 10))
sketch5.addConstraint(Sketcher.Constraint("Equal", 10, 11))
sketch5.addConstraint(Sketcher.Constraint("Horizontal", 4, 3, 5, 3))
sketch5.addConstraint(Sketcher.Constraint("Horizontal", 5, 3, 6, 3))
sketch5.addConstraint(Sketcher.Constraint("Horizontal", 6, 3, 7, 3))
sketch5.addConstraint(Sketcher.Constraint("Horizontal", 8, 3, 9, 3))
sketch5.addConstraint(Sketcher.Constraint("Horizontal", 9, 3, 10, 3))
sketch5.addConstraint(Sketcher.Constraint("Horizontal", 10, 3, 11, 3))
sketch5.addConstraint(Sketcher.Constraint("Vertical", 4, 3, 8, 3))
sketch5.addConstraint(Sketcher.Constraint("Vertical", 5, 3, 9, 3))
sketch5.addConstraint(Sketcher.Constraint("Vertical", 6, 3, 10, 3))
sketch5.addConstraint(Sketcher.Constraint("Vertical", 7, 3, 11, 3))
sketch5.addConstraint(Sketcher.Constraint("DistanceX", 1, 1, 1, 2, Q("14 in")))
sketch5.addConstraint(Sketcher.Constraint("Diameter", 4, Q("0.375 in")))
sketch5.addConstraint(Sketcher.Constraint("DistanceY", 0, 2, 0, 1, Q("3.5 in")))
sketch5.addConstraint(Sketcher.Constraint("DistanceY", 4, 3, 8, 3, Q("1 in")))
sketch5.addConstraint(Sketcher.Constraint("DistanceY", 11, 3, 2, 2, Q("1 in")))
sketch5.addConstraint(Sketcher.Constraint("DistanceX", -1, 1, 4, 3, Q("1.155 in")))
sketch5.addConstraint(Sketcher.Constraint("DistanceX", -1, 1, 5, 3, Q("2.843 in")))
sketch5.addConstraint(Sketcher.Constraint("DistanceX", -1, 1, 6, 3, Q("11.156 in")))
sketch5.addConstraint(Sketcher.Constraint("DistanceX", -1, 1, 7, 3, Q("12.844 in")))
sketch5.setExpression("Constraints[26]", "Params.sketch5_width")
sketch5.setExpression("Constraints[27]", "Params.sketch5_diameter")
sketch5.setExpression("Constraints[28]", "Params.sketch5_height")
pocket3 = body.newObject("PartDesign::Pocket", "Pocket002")
pocket3.Profile = sketch5
pocket3.setExpression("Length", "Params.pocket3_length")

sketch6 = body.newObject("Sketcher::SketchObject", "Sketch005")
sketch6.AttachmentSupport = (doc.getObject("XZ_Plane"), [""])
sketch6.MapMode = "FlatFace"
sketch6.addGeometry(Part.Circle(App.Vector(215.9, 101.6, 0), App.Vector(0, 0, 1), 3.2), False)
sketch6.addGeometry(Part.Circle(App.Vector(215.9, 33.4, 0), App.Vector(0, 0, 1), 3.2), False)
sketch6.addGeometry(Part.Circle(App.Vector(139.7, 33.4, 0), App.Vector(0, 0, 1), 3.2), False)
sketch6.addGeometry(Part.Circle(App.Vector(139.7, 101.6, 0), App.Vector(0, 0, 1), 3.2), False)
sketch6.addConstraint(Sketcher.Constraint("Equal", 0, 1))
sketch6.addConstraint(Sketcher.Constraint("Equal", 1, 2))
sketch6.addConstraint(Sketcher.Constraint("Equal", 2, 3))
sketch6.addConstraint(Sketcher.Constraint("Horizontal", 1, 3, 2, 3))
sketch6.addConstraint(Sketcher.Constraint("Horizontal", 0, 3, 3, 3))
sketch6.addConstraint(Sketcher.Constraint("Vertical", 0, 3, 1, 3))
sketch6.addConstraint(Sketcher.Constraint("Vertical", 2, 3, 3, 3))
sketch6.addConstraint(Sketcher.Constraint("Diameter", 0, Q("0.25 in")))
sketch6.addConstraint(Sketcher.Constraint("DistanceY", -1, 1, 0, 3, Q("4 in")))
sketch6.addConstraint(Sketcher.Constraint("DistanceX", 2, 3, 1, 3, Q("3 in")))
sketch6.addConstraint(Sketcher.Constraint("DistanceX", -1, 1, 0, 3, Q("8.5 in")))
sketch6.addConstraint(Sketcher.Constraint("DistanceY", -1, 1, 1, 3, Q("1.315 in")))
sketch6.setExpression("Constraints[7]", "Params.sketch6_diameter")
doc.recompute()
hole2 = body.newObject("PartDesign::Hole", "Hole001")
hole2.Profile = sketch6
hole2.ThreadType = "None"
hole2.setExpression("Diameter", "Params.hole2_diameter")
hole2.DepthType = "Dimension"
hole2.setExpression("Depth", "Params.hole2_depth")
hole2.DrillPoint = "Angled"
hole2.DrillPointAngle = 118
hole2.Reversed = True
doc.recompute()

chamfer = body.newObject("PartDesign::Chamfer", "Chamfer")
chamfer.Base = (hole2, edges_at(hole2, [
    (355.6, -5.715, 304.8),
    (355.6, -5.715, 0),
    (0, -5.715, 304.8),
    (0, -5.715, 0),
]))
chamfer.setExpression("Size", "Params.chamfer_size")

doc.recompute()
